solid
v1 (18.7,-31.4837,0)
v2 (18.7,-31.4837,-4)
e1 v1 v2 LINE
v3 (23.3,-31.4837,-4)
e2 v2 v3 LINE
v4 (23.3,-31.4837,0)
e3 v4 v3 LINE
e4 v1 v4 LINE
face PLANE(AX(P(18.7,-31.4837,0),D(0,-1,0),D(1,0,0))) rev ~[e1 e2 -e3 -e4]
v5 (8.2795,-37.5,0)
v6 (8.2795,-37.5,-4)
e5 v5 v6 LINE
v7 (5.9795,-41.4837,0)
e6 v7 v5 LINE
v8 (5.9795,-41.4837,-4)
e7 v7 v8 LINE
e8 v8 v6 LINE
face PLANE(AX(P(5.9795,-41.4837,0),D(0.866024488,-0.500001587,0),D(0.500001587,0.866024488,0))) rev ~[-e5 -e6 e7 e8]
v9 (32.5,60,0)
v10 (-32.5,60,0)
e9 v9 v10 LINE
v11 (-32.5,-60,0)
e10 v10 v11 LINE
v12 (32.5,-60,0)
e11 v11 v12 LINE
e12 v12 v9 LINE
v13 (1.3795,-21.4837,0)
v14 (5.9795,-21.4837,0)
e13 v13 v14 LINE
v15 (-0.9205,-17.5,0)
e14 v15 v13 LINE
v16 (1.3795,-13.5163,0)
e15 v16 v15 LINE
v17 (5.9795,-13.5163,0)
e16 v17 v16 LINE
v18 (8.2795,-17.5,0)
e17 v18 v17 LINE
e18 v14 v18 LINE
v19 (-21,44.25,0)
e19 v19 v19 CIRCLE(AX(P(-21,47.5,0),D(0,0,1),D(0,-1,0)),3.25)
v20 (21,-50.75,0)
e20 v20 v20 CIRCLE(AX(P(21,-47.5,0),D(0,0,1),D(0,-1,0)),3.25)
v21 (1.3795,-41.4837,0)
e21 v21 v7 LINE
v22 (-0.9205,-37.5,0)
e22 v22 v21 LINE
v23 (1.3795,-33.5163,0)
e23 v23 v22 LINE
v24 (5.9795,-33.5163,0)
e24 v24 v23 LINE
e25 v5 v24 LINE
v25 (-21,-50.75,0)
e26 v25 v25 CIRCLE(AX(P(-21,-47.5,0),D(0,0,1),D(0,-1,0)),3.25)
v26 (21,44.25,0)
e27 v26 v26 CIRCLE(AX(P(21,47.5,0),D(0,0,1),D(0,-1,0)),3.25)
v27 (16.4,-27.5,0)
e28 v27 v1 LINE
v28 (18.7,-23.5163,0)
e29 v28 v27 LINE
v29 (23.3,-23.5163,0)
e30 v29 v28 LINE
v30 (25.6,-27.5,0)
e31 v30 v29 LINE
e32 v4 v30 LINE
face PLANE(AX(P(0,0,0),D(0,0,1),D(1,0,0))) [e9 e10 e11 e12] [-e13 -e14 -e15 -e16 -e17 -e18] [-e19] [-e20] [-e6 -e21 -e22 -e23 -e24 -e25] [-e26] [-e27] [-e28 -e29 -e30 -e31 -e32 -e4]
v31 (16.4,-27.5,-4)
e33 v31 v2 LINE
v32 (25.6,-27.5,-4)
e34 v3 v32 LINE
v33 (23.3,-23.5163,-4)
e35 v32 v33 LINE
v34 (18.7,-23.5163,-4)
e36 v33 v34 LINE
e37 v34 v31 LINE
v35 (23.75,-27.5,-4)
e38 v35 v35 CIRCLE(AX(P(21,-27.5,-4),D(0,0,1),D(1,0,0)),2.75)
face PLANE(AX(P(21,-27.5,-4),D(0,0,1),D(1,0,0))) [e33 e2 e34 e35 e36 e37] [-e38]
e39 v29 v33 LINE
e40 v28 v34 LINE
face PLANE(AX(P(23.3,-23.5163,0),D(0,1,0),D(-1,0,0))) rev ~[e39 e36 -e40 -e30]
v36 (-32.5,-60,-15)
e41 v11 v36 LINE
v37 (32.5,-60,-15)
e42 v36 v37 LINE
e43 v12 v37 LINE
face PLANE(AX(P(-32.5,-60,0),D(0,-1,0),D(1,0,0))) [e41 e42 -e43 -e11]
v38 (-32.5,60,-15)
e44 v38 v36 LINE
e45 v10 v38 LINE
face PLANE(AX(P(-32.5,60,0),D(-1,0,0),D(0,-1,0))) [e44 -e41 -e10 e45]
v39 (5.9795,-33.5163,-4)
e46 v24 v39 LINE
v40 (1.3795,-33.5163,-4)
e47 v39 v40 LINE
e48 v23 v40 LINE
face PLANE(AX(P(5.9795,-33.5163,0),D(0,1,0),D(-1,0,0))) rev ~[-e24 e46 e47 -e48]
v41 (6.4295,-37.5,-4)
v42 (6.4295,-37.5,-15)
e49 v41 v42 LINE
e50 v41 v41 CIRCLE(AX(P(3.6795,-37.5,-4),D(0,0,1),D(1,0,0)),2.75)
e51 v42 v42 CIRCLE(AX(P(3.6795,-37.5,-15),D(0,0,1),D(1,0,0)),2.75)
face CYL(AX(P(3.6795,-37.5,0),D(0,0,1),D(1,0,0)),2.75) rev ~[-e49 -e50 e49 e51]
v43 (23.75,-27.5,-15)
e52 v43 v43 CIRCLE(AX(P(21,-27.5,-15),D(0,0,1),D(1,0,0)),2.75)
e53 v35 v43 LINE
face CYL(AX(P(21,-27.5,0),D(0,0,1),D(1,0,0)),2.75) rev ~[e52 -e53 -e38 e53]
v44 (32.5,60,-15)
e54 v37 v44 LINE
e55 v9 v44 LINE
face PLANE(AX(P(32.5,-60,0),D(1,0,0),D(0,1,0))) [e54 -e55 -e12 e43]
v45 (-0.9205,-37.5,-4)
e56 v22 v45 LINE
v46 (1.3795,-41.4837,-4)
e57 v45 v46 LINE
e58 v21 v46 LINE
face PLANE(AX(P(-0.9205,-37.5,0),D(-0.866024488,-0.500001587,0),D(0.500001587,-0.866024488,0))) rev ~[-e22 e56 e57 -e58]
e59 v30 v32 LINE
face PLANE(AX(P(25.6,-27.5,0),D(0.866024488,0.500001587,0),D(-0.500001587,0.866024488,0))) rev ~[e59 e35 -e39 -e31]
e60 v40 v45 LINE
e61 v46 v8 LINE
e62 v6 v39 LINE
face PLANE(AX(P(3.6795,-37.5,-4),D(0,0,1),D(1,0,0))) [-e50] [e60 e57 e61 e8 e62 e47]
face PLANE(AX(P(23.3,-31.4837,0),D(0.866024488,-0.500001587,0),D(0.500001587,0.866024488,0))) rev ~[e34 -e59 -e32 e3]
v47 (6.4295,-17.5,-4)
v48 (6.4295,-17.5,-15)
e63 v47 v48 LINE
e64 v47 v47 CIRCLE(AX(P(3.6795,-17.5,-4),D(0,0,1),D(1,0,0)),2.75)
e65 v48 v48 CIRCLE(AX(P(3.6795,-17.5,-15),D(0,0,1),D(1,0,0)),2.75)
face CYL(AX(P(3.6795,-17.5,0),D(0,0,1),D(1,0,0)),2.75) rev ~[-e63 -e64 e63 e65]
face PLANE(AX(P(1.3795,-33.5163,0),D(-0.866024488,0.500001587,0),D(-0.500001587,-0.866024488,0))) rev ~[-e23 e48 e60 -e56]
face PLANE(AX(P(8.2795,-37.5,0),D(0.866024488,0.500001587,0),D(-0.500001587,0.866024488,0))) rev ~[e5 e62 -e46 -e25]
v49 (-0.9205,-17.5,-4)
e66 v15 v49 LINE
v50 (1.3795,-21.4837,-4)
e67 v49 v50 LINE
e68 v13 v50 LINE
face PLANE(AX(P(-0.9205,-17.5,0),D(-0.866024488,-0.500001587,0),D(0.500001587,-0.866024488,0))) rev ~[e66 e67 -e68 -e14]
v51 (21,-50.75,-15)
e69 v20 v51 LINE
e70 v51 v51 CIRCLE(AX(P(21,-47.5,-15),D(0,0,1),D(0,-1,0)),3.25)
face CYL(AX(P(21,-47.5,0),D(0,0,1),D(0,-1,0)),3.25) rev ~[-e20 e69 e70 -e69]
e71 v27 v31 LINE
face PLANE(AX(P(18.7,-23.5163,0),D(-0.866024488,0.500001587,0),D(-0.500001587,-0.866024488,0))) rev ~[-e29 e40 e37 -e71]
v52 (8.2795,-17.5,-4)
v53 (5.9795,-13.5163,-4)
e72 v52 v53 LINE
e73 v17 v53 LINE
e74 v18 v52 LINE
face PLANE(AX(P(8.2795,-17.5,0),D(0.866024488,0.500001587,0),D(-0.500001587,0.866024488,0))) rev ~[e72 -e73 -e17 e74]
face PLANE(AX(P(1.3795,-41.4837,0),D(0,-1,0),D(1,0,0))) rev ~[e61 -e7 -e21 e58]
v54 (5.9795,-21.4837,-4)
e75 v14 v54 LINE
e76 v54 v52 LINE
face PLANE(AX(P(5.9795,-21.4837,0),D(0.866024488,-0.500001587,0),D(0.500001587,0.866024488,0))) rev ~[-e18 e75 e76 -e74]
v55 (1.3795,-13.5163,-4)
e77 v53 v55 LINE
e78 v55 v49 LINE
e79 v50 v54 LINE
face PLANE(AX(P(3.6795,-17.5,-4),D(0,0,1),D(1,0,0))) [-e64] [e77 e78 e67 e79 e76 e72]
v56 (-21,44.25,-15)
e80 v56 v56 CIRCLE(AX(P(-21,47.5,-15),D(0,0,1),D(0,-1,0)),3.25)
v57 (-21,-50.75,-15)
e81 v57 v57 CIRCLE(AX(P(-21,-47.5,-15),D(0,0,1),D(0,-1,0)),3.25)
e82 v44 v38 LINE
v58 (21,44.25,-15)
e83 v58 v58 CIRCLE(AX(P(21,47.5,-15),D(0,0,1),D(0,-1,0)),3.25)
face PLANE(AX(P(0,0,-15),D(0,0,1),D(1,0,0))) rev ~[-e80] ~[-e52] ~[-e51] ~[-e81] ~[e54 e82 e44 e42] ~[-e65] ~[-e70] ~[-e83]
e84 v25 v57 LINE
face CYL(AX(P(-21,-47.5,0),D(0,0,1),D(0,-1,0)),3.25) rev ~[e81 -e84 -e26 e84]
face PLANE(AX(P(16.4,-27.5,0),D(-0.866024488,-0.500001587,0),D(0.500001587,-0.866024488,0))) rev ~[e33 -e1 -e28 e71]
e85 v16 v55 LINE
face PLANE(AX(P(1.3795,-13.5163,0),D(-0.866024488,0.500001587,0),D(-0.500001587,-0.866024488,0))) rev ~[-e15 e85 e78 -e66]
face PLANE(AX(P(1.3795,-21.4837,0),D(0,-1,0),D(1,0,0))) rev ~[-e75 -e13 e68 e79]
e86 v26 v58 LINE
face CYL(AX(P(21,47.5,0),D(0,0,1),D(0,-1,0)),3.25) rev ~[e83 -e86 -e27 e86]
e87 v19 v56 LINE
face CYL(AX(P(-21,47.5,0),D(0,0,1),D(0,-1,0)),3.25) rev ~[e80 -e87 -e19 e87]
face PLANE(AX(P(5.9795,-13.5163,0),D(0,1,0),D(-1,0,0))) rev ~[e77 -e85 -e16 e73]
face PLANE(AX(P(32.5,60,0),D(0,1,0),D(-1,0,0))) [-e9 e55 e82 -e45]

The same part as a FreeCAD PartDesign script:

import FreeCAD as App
import Part
import Sketcher
Q = App.Units.Quantity


def add_polygon(sketch, points):
    """Adds a closed chain of lines whose ends are joined by coincident constraints."""
    first, n = sketch.GeometryCount, len(points)
    for a, b in zip(points, points[1:] + points[:1]):
        sketch.addGeometry(Part.LineSegment(App.Vector(*a, 0), App.Vector(*b, 0)), False)
    for i in range(n):
        sketch.addConstraint(Sketcher.Constraint("Coincident", first + i, 2, first + (i + 1) % n, 1))

doc = App.newDocument("Part")
body = doc.addObject("PartDesign::Body", "Body")

# Sketch on XY plane
sketch1 = body.newObject("Sketcher::SketchObject", "Sketch")
sketch1.AttachmentSupport = (doc.getObject("XY_Plane"), [""])
sketch1.MapMode = "FlatFace"
add_polygon(sketch1, [(32, -60), (32, 60), (-32, 60), (-32, -60)])  # lines 0-3
sketch1.addConstraint([
    Sketcher.Constraint("Vertical", 0),
    Sketcher.Constraint("Horizontal", 1),
    Sketcher.Constraint("Vertical", 2),
    Sketcher.Constraint("Horizontal", 3),
    Sketcher.Constraint("Symmetric", 0, 2, 2, 2, -1, 1),
    Sketcher.Constraint("DistanceX", 1, 2, 1, 1, 65.0),
    Sketcher.Constraint("DistanceY", 0, 1, 0, 2, 120.0),
])
pad1 = body.newObject("PartDesign::Pad", "Pad")
pad1.Profile = sketch1
pad1.Length = 15
pad1.Reversed = True

# Sketch on XY plane
sketch2 = body.newObject("Sketcher::SketchObject", "Sketch001")
sketch2.AttachmentSupport = (doc.getObject("XY_Plane"), [""])
sketch2.MapMode = "FlatFace"
sketch2.addGeometry([
    Part.Circle(App.Vector(21, 47.5, 0), App.Vector(0, 0, 1), 3.2),
    Part.Circle(App.Vector(-21, 47.5, 0), App.Vector(0, 0, 1), 3.2),
    Part.Circle(App.Vector(21, -47.5, 0), App.Vector(0, 0, 1), 3.2),
    Part.Circle(App.Vector(-21, -47.5, 0), App.Vector(0, 0, 1), 3.2),
], False)
sketch2.addConstraint([
    Sketcher.Constraint("Equal", 0, 1),
    Sketcher.Constraint("Equal", 1, 2),
    Sketcher.Constraint("Equal", 2, 3),
    Sketcher.Constraint("Symmetric", 1, 3, 2, 3, -1, 1),
    Sketcher.Constraint("Symmetric", 0, 3, 3, 3, -1, 1),
    Sketcher.Constraint("Symmetric", 0, 3, 1, 3, -2),
    Sketcher.Constraint("Diameter", 0, 6.5),
    Sketcher.Constraint("DistanceX", -1, 1, 0, 3, 21.0),
    Sketcher.Constraint("DistanceY", 2, 3, 0, 3, 95.0),
])
pocket1 = body.newObject("PartDesign::Pocket", "Pocket")
pocket1.Profile = sketch2
pocket1.Length = 309.8

# Sketch on XY plane
sketch3 = body.newObject("Sketcher::SketchObject", "Sketch002")
sketch3.AttachmentSupport = (doc.getObject("XY_Plane"), [""])
sketch3.MapMode = "FlatFace"
add_polygon(sketch3, [(6, -41.5), (8.3, -37.5), (6, -33.5), (1.4, -33.5), (-0.9, -37.5), (1.4, -41.5)])  # lines 0-5
add_polygon(sketch3, [(23.3, -23.5), (18.7, -23.5), (16.4, -27.5), (18.7, -31.5), (23.3, -31.5), (25.6, -27.5)])  # lines 6-11
add_polygon(sketch3, [(1.4, -21.5), (6, -21.5), (8.3, -17.5), (6, -13.5), (1.4, -13.5), (-0.9, -17.5)])  # lines 12-17
sketch3.addConstraint([
    Sketcher.Constraint("Horizontal", 2),
    Sketcher.Constraint("Horizontal", 5),
    Sketcher.Constraint("Horizontal", 6),
    Sketcher.Constraint("Horizontal", 9),
    Sketcher.Constraint("Horizontal", 12),
    Sketcher.Constraint("Horizontal", 15),
    Sketcher.Constraint("Parallel", 0, 3),
    Sketcher.Constraint("Parallel", 1, 4),
    Sketcher.Constraint("Parallel", 3, 7),
    Sketcher.Constraint("Parallel", 4, 8),
    Sketcher.Constraint("Parallel", 7, 10),
    Sketcher.Constraint("Parallel", 8, 11),
    Sketcher.Constraint("Parallel", 10, 13),
    Sketcher.Constraint("Parallel", 11, 14),
    Sketcher.Constraint("Parallel", 13, 16),
    Sketcher.Constraint("Parallel", 14, 17),
    Sketcher.Constraint("Horizontal", 0, 2, 3, 2),
    Sketcher.Constraint("Horizontal", 7, 2, 10, 2),
    Sketcher.Constraint("Horizontal", 13, 2, 16, 2),
    Sketcher.Constraint("Vertical", 2, 2, 4, 2),
    Sketcher.Constraint("Vertical", 1, 2, 5, 2),
    Sketcher.Constraint("Vertical", 6, 2, 8, 2),
    Sketcher.Constraint("Vertical", 5, 2, 12, 2),
    Sketcher.Constraint("Vertical", 0, 2, 13, 2),
    Sketcher.Constraint("Vertical", 12, 2, 14, 2),
    Sketcher.Constraint("Vertical", 4, 2, 15, 2),
    Sketcher.Constraint("Equal", 5, 6),
    Sketcher.Constraint("Equal", 4, 7),
    Sketcher.Constraint("Angle", 0, Q("60 deg")),
    Sketcher.Constraint("DistanceX", 2, 2, 2, 1, 4.6),
    Sketcher.Constraint("DistanceY", 1, 2, 6, 2, 10.0),
    Sketcher.Constraint("DistanceY", 8, 2, 12, 2, 10.0),
    Sketcher.Constraint("Distance", 0, 4.6),
    Sketcher.Constraint("DistanceY", 0, 2, -1, 1, 37.5),
    Sketcher.Constraint("DistanceX", -1, 1, 6, 2, 18.7),
    Sketcher.Constraint("DistanceX", -1, 1, 0, 2, 8.2795),
])
pocket2 = body.newObject("PartDesign::Pocket", "Pocket001")
pocket2.Profile = sketch3
pocket2.Length = 4

# Sketch on XY plane
sketch4 = body.newObject("Sketcher::SketchObject", "Sketch003")
sketch4.AttachmentSupport = (doc.getObject("XY_Plane"), [""])
sketch4.MapMode = "FlatFace"
sketch4.addGeometry([
    Part.Circle(App.Vector(3.7, -17.5, 0), App.Vector(0, 0, 1), 2.8),
    Part.Circle(App.Vector(21, -27.5, 0), App.Vector(0, 0, 1), 2.8),
    Part.Circle(App.Vector(3.7, -37.5, 0), App.Vector(0, 0, 1), 2.8),
], False)
sketch4.addConstraint([
    Sketcher.Constraint("Equal", 0, 1),
    Sketcher.Constraint("Equal", 1, 2),
    Sketcher.Constraint("Vertical", 0, 3, 2, 3),
    Sketcher.Constraint("Diameter", 0, 5.5),
    Sketcher.Constraint("DistanceX", -1, 1, 1, 3, 21.0),
    Sketcher.Constraint("DistanceY", 1, 3, 0, 3, 10.0),
    Sketcher.Constraint("DistanceY", 2, 3, 1, 3, 10.0),
    Sketcher.Constraint("DistanceY", 0, 3, -1, 1, 17.5),
    Sketcher.Constraint("DistanceX", -1, 1, 0, 3, 3.6795),
])
pocket3 = body.newObject("PartDesign::Pocket", "Pocket002")
pocket3.Profile = sketch4
pocket3.Length = 54.7

doc.recompute()
